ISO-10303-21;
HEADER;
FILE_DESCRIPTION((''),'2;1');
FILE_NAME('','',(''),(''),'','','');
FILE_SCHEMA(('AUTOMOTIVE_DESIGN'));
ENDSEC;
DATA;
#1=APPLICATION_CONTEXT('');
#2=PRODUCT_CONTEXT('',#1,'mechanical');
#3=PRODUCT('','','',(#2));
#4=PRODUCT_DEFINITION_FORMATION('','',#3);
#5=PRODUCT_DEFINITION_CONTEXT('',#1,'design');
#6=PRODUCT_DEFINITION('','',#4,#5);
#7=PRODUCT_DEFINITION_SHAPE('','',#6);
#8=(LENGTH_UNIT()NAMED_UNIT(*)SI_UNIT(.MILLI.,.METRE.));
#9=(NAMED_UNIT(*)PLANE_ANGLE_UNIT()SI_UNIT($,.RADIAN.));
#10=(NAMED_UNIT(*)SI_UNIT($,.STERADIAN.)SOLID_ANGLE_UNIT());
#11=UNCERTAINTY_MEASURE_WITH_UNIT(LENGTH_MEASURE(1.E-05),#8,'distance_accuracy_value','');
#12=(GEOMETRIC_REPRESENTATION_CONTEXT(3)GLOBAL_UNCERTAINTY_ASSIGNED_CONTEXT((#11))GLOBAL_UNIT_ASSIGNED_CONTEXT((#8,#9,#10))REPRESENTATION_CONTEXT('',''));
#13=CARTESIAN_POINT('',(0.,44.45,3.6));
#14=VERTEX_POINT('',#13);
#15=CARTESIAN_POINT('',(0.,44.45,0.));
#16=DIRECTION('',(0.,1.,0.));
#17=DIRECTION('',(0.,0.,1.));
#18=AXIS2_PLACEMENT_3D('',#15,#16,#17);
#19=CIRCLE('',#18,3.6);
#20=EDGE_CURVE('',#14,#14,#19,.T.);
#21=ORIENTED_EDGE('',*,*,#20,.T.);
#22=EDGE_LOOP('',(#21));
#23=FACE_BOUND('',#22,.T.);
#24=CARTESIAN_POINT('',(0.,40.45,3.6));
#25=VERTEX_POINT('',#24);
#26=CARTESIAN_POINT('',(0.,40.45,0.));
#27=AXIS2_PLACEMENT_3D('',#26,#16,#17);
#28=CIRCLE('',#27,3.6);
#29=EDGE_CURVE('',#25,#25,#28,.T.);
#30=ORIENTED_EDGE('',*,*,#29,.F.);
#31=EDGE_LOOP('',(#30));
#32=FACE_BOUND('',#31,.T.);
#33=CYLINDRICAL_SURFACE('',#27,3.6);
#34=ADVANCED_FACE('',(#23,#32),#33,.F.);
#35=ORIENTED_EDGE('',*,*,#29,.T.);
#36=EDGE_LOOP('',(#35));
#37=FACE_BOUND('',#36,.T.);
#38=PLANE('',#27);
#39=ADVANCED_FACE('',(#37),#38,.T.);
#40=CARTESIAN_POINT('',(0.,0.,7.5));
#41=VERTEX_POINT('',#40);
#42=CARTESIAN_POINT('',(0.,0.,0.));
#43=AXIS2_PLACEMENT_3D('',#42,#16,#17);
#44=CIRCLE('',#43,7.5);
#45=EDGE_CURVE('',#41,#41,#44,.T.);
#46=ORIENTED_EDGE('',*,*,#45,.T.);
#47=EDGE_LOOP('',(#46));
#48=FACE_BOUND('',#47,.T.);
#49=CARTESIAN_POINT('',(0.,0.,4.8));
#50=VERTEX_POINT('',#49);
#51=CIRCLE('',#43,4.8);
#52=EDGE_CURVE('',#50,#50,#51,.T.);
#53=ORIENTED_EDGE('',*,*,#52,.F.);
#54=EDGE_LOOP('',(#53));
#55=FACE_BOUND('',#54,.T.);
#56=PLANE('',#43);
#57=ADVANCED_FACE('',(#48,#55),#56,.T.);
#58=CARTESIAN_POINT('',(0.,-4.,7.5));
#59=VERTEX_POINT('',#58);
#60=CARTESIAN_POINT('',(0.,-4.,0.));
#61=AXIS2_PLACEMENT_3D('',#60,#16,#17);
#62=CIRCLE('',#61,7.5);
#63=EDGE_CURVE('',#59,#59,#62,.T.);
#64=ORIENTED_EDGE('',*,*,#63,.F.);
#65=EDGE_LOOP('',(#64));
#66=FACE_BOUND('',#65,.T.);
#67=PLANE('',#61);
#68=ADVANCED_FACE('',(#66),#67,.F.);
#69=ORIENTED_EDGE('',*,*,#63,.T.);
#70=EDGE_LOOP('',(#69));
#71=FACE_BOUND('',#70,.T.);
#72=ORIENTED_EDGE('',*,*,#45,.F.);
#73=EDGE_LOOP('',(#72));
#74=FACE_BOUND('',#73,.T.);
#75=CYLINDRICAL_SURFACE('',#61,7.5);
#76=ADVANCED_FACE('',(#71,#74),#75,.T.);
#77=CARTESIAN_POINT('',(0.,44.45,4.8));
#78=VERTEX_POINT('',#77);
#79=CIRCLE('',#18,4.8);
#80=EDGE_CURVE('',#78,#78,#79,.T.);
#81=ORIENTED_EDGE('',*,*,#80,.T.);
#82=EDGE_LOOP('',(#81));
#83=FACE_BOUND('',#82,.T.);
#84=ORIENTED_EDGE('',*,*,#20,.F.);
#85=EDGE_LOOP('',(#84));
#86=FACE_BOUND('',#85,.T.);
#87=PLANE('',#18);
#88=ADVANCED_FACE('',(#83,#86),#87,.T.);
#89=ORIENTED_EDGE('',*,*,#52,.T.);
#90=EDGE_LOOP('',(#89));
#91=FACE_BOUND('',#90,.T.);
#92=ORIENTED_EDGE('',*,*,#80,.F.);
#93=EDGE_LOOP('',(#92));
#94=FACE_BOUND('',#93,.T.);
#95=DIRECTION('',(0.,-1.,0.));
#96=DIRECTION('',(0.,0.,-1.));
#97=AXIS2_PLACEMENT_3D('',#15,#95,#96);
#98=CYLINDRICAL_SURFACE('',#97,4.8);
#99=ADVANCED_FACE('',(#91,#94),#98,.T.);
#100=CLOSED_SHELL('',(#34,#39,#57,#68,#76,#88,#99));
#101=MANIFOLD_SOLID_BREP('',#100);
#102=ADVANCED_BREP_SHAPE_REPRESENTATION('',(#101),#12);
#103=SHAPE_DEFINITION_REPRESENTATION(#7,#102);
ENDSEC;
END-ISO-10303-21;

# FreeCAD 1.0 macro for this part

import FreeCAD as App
import Part
import Sketcher
Q = App.Units.Quantity

doc = App.newDocument("Part")
body = doc.addObject("PartDesign::Body", "Body")

# Sketch on XZ plane
sketch1 = doc.addObject("Sketcher::SketchObject", "Sketch")
body.addObject(sketch1)
sketch1.AttachmentSupport = (doc.XZ_Plane, [""])
sketch1.MapMode = "FlatFace"
sketch1.addGeometry(Part.Circle(App.Vector(0, 0, 0), App.Vector(0, 0, 1), 4.8), False)
sketch1.addConstraint([
    Sketcher.Constraint("Coincident", 0, 3, -1, 1),
    Sketcher.Constraint("Diameter", 0, Q("9.6 mm")),
])
pad1 = doc.addObject("PartDesign::Pad", "Pad")
body.addObject(pad1)
pad1.Profile = sketch1
pad1.Length = 44.45
pad1.Reversed = True

# Sketch on XZ plane
sketch2 = doc.addObject("Sketcher::SketchObject", "Sketch001")
body.addObject(sketch2)
sketch2.AttachmentSupport = (doc.XZ_Plane, [""])
sketch2.MapMode = "FlatFace"
sketch2.addGeometry(Part.Circle(App.Vector(0, 0, 0), App.Vector(0, 0, 1), 8), False)
sketch2.addConstraint([
    Sketcher.Constraint("Coincident", 0, 3, -1, 1),
    Sketcher.Constraint("Diameter", 0, Q("15 mm")),
])
pad2 = doc.addObject("PartDesign::Pad", "Pad001")
body.addObject(pad2)
pad2.Profile = sketch2
pad2.Length = 4

# Sketch on XZ plane
sketch3 = doc.addObject("Sketcher::SketchObject", "Sketch002")
body.addObject(sketch3)
sketch3.AttachmentSupport = (doc.XZ_Plane, [""])
sketch3.MapMode = "FlatFace"
sketch3.AttachmentOffset = App.Placement(App.Vector(0, 0, -44.45), App.Rotation())
sketch3.addGeometry(Part.Circle(App.Vector(0, 0, 0), App.Vector(0, 0, 1), 3.6), False)
sketch3.addConstraint([
    Sketcher.Constraint("Coincident", 0, 3, -1, 1),
    Sketcher.Constraint("Diameter", 0, Q("7.2 mm")),
])
pocket1 = doc.addObject("PartDesign::Pocket", "Pocket")
body.addObject(pocket1)
pocket1.Profile = sketch3
pocket1.Length = 4
pocket1.Reversed = True

doc.recompute()
